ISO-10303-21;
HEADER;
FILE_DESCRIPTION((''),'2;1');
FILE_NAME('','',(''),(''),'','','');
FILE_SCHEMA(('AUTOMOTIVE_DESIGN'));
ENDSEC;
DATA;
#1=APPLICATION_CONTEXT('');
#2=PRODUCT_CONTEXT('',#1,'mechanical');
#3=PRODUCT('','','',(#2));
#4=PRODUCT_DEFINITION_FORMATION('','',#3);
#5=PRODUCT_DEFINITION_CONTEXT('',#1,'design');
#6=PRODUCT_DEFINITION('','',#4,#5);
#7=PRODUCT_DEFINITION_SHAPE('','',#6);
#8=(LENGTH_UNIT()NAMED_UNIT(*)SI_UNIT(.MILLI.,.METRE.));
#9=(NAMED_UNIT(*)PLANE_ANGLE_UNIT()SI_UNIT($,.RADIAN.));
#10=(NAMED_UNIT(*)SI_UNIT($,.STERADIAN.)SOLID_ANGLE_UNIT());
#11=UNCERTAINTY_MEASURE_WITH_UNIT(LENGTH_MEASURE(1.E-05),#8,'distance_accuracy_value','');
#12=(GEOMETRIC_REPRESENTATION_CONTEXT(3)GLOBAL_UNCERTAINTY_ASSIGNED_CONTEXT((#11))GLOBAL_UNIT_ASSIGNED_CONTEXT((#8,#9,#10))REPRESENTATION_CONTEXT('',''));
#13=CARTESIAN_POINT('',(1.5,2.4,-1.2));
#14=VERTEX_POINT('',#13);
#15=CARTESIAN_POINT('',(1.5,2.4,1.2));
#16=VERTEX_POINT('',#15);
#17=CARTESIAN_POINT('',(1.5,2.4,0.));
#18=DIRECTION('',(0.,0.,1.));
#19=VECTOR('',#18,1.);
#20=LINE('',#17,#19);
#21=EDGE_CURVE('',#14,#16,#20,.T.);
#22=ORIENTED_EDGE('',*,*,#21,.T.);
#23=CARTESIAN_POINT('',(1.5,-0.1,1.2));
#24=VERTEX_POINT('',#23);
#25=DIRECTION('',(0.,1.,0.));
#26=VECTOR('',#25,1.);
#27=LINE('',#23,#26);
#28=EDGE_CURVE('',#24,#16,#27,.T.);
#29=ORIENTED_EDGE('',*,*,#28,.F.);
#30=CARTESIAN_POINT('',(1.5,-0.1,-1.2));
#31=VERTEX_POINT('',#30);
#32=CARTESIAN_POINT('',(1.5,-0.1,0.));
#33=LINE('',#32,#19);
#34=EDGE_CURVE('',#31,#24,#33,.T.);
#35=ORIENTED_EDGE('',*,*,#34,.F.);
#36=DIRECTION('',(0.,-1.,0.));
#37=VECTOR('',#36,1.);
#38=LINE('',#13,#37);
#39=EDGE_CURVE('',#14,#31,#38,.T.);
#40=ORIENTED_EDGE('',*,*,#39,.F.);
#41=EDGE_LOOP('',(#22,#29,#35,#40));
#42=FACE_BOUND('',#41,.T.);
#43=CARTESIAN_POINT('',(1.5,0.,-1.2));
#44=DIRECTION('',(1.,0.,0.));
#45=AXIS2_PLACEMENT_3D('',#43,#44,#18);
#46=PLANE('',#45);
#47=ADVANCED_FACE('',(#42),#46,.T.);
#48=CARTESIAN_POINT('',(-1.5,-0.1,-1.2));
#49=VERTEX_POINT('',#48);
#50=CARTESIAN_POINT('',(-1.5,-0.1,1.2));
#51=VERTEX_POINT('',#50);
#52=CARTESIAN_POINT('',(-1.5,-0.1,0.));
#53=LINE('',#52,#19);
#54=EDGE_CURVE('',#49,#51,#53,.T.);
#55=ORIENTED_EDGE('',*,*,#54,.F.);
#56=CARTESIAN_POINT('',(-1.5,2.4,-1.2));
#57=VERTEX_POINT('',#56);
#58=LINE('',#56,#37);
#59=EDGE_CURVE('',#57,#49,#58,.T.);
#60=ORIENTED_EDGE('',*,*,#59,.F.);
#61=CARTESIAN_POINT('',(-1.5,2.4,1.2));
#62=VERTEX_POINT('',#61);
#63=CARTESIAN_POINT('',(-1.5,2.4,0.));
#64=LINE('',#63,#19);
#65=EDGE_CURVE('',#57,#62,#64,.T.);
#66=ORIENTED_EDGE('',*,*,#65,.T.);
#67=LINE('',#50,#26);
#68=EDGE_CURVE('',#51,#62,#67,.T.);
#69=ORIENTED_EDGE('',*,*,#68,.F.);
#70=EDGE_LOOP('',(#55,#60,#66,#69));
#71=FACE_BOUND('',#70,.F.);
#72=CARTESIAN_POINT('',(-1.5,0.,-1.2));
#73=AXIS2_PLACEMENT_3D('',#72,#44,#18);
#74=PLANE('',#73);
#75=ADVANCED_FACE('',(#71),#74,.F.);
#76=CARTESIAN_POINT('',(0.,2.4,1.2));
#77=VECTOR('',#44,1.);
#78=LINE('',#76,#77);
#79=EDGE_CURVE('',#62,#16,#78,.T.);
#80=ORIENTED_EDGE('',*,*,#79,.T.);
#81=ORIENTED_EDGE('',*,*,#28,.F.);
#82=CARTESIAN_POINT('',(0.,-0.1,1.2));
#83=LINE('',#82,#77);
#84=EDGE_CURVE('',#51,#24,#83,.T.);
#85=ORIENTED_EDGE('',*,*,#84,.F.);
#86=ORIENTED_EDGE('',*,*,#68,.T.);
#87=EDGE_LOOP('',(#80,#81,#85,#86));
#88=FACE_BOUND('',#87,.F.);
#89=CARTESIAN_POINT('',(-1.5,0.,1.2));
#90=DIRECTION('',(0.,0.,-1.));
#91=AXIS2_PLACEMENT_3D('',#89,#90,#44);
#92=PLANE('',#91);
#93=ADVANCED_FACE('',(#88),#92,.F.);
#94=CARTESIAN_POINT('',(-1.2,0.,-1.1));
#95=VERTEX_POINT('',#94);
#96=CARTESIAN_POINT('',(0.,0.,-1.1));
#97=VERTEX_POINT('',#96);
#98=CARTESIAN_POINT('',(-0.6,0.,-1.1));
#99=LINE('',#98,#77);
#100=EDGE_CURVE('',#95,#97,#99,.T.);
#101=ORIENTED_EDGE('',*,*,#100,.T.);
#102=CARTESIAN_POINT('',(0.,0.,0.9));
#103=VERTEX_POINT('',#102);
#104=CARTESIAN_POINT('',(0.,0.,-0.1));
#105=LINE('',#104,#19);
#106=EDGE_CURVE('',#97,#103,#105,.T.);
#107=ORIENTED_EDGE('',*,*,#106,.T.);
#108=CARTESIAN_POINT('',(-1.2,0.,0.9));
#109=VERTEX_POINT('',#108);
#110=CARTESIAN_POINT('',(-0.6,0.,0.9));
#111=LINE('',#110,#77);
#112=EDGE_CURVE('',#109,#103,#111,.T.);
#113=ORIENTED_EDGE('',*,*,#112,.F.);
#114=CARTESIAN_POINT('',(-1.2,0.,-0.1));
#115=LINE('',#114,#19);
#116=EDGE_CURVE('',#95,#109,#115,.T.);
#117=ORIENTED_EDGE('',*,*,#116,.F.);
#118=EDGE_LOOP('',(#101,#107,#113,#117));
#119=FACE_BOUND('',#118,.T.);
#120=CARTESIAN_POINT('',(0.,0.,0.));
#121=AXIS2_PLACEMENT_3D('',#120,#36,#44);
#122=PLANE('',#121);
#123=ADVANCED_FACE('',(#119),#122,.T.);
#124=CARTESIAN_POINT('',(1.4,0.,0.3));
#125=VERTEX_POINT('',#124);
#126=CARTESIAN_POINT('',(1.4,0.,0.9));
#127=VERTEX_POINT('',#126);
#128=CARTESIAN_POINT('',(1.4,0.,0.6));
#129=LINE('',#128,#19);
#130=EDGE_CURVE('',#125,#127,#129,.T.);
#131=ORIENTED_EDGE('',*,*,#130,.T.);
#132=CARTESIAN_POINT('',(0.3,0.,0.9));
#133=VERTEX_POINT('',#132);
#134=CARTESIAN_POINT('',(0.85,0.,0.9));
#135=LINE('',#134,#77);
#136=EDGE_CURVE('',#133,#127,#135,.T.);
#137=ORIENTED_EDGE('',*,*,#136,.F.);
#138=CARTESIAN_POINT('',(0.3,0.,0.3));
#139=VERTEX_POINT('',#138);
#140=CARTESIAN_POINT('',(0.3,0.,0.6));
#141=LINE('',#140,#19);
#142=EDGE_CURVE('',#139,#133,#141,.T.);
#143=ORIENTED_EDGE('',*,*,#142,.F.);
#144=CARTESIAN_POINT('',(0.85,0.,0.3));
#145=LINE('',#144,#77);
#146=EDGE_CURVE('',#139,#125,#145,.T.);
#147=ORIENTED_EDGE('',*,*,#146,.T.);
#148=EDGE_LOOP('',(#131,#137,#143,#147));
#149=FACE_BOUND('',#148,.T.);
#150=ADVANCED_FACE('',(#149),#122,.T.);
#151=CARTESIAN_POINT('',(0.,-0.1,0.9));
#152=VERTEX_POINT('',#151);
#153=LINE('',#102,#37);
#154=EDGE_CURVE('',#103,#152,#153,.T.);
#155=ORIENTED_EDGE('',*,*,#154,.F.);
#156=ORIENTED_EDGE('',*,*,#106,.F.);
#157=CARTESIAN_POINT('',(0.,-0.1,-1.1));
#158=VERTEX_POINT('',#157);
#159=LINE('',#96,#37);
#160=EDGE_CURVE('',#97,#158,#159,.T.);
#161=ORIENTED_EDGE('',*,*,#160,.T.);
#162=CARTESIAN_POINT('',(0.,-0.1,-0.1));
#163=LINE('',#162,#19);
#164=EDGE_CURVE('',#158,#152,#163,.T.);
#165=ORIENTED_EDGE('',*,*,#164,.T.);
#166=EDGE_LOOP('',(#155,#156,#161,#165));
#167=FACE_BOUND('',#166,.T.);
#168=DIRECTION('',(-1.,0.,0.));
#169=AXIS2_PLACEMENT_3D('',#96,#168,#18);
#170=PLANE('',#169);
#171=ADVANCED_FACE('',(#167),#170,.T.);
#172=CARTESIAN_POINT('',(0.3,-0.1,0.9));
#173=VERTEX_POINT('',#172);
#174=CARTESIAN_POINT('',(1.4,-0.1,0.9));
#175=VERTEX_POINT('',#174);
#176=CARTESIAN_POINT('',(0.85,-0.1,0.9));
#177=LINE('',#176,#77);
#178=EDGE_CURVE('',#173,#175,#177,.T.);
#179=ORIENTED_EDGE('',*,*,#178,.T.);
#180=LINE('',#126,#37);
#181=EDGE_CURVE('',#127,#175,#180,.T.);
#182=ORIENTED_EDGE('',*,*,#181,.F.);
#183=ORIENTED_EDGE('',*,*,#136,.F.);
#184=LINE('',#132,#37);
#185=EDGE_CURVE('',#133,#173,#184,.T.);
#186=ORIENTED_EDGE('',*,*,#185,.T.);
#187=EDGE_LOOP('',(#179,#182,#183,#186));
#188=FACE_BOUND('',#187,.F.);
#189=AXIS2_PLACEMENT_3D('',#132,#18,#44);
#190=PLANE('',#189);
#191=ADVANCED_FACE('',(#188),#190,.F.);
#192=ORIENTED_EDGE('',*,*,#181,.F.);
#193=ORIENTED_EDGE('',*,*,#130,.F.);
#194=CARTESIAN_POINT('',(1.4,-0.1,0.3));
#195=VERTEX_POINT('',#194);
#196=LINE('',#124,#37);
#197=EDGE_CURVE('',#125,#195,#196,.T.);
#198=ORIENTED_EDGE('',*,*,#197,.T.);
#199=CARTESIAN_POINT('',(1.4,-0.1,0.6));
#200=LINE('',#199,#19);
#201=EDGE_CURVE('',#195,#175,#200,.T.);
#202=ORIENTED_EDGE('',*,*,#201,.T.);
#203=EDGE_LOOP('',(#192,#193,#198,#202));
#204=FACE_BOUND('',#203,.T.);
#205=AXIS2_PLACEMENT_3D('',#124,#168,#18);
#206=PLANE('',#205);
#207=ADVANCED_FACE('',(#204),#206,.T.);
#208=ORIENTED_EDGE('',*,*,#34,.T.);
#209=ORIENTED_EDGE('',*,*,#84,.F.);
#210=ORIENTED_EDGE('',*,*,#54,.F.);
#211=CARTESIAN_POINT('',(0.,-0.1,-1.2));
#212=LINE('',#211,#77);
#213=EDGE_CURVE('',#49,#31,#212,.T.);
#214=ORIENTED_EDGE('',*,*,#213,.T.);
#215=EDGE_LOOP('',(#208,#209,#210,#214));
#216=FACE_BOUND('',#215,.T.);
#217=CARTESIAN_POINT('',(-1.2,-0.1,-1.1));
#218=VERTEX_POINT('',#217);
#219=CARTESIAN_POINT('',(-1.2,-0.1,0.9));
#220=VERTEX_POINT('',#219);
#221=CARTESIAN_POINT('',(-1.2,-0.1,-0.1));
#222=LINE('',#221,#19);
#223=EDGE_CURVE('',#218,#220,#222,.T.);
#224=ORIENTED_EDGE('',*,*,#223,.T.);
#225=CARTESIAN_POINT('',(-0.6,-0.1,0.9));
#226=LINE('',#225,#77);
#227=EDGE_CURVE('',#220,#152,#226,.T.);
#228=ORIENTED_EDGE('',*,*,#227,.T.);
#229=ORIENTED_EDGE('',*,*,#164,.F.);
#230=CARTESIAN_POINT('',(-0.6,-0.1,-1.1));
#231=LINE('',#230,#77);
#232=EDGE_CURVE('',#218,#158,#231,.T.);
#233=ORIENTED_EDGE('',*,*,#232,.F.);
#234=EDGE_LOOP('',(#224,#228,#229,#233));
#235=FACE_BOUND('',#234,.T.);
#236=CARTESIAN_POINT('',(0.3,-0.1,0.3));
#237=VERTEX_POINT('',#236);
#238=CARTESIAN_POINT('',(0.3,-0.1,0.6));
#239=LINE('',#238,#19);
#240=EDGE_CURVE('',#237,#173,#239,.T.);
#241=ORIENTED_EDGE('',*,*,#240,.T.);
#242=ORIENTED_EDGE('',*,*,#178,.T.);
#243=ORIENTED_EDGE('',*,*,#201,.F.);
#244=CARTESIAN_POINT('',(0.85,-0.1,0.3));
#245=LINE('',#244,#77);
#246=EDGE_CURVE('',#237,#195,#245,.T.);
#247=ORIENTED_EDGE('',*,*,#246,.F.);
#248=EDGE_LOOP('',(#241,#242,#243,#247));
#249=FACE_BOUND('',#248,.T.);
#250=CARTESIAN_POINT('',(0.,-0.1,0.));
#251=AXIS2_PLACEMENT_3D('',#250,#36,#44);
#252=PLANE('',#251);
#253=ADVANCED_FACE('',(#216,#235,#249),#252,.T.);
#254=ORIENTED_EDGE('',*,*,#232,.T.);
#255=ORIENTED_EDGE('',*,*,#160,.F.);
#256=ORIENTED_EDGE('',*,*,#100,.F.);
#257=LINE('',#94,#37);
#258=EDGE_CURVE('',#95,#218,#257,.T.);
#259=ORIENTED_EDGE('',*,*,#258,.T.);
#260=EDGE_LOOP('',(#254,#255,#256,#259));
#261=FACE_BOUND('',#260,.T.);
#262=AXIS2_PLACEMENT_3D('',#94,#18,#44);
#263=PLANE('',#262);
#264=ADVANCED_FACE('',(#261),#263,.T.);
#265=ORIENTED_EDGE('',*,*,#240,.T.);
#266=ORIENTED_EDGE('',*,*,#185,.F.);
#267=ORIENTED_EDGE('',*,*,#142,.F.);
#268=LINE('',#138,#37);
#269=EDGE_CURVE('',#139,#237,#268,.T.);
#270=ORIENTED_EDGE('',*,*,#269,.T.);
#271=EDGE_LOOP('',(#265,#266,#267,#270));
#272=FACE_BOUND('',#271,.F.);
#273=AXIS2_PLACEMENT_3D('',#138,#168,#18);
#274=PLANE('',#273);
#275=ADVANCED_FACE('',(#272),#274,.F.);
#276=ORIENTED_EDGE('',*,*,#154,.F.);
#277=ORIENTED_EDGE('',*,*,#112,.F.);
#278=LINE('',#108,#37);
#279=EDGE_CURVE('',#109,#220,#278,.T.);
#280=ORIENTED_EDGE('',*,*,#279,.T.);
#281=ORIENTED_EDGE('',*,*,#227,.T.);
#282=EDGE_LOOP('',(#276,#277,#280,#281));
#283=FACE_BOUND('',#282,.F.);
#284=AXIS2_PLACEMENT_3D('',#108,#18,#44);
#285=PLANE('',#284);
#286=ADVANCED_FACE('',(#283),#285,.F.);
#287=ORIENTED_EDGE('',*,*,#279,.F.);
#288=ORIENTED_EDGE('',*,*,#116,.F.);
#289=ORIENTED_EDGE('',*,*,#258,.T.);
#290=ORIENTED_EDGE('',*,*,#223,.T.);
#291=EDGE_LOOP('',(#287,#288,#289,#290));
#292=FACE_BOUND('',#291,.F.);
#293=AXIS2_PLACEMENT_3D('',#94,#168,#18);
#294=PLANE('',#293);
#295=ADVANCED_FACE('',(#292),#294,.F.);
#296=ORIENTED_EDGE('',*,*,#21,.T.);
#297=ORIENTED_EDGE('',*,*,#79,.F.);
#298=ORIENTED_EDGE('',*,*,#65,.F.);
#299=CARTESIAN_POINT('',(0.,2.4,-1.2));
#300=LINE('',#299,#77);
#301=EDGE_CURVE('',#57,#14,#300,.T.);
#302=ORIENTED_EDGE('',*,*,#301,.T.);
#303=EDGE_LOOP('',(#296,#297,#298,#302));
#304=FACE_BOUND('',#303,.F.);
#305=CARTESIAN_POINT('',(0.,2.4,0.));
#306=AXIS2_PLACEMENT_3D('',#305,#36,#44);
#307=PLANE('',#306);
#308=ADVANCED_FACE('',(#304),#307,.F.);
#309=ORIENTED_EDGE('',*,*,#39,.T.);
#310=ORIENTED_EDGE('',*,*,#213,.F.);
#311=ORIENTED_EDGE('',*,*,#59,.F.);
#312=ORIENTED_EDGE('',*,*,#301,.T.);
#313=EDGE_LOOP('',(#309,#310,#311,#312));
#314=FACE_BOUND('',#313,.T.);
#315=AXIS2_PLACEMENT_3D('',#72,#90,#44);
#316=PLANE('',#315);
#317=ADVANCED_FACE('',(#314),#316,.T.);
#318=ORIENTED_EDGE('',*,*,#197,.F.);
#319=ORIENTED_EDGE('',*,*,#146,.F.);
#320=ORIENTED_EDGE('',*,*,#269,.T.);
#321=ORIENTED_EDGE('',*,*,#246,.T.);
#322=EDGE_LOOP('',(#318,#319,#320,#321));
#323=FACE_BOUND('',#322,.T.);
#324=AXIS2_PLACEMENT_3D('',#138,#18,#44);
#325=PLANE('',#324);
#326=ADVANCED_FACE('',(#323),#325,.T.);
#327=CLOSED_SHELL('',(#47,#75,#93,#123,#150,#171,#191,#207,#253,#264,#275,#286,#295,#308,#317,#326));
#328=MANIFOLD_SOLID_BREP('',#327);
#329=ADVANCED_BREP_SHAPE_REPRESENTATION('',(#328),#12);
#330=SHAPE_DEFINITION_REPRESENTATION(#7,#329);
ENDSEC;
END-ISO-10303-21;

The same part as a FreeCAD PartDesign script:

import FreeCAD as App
import Part
import Sketcher

V = App.Vector
Q = App.Units.Quantity


def add_polygon(sketch, points):
    """Adds a closed chain of lines whose ends are joined by coincident constraints."""
    first, n = sketch.GeometryCount, len(points)
    for a, b in zip(points, points[1:] + points[:1]):
        sketch.addGeometry(Part.LineSegment(App.Vector(*a, 0), App.Vector(*b, 0)), False)
    for i in range(n):
        sketch.addConstraint(Sketcher.Constraint("Coincident", first + i, 2, first + (i + 1) % n, 1))

doc = App.newDocument("Part")
body = doc.addObject("PartDesign::Body", "Body")

# Sketch on XZ plane
sketch1 = body.newObject("Sketcher::SketchObject", "Sketch")
sketch1.AttachmentSupport = (doc.getObject("XZ_Plane"), [""])
sketch1.MapMode = "FlatFace"
add_polygon(sketch1, [(-1.5, 1.2), (-1.5, -1.2), (1.5, -1.2), (1.5, 1.2)])  # lines 0-3
add_polygon(sketch1, [(0, -1.1), (-1.2, -1.1), (-1.2, 0.9), (0, 0.9)])  # lines 4-7
add_polygon(sketch1, [(1.4, 0.3), (0.3, 0.3), (0.3, 0.9), (1.4, 0.9)])  # lines 8-11
sketch1.addConstraint([
    Sketcher.Constraint("Vertical", 0),
    Sketcher.Constraint("Horizontal", 1),
    Sketcher.Constraint("Vertical", 2),
    Sketcher.Constraint("Horizontal", 3),
    Sketcher.Constraint("Horizontal", 4),
    Sketcher.Constraint("Vertical", 5),
    Sketcher.Constraint("Horizontal", 6),
    Sketcher.Constraint("Vertical", 7),
    Sketcher.Constraint("Horizontal", 8),
    Sketcher.Constraint("Vertical", 9),
    Sketcher.Constraint("Horizontal", 10),
    Sketcher.Constraint("Vertical", 11),
    Sketcher.Constraint("Symmetric", 0, 2, 2, 2, -1, 1),
    Sketcher.Constraint("PointOnObject", 6, 2, -2),
    Sketcher.Constraint("Horizontal", 6, 2, 9, 2),
    Sketcher.Constraint("DistanceX", 1, 1, 1, 2, Q("3 mm")),
    Sketcher.Constraint("DistanceY", 5, 1, 5, 2, Q("2 mm")),
    Sketcher.Constraint("DistanceX", 4, 2, 4, 1, Q("1.2 mm")),
    Sketcher.Constraint("DistanceX", 8, 2, 8, 1, Q("1.1 mm")),
    Sketcher.Constraint("DistanceY", 0, 2, 0, 1, Q("2.4 mm")),
    Sketcher.Constraint("DistanceY", 9, 1, 9, 2, Q("0.6 mm")),
    Sketcher.Constraint("DistanceY", 4, 2, -1, 1, Q("1.1 mm")),
    Sketcher.Constraint("DistanceX", -1, 1, 8, 2, Q("0.3 mm")),
])
pad1 = body.newObject("PartDesign::Pad", "Pad")
pad1.Profile = sketch1
pad1.Length = 0.1

# Sketch on XZ plane
sketch2 = body.newObject("Sketcher::SketchObject", "Sketch001")
sketch2.AttachmentSupport = (doc.getObject("XZ_Plane"), [""])
sketch2.MapMode = "FlatFace"
add_polygon(sketch2, [(-1.5, 1.2), (-1.5, -1.2), (1.5, -1.2), (1.5, 1.2)])  # lines 0-3
sketch2.addConstraint([
    Sketcher.Constraint("Vertical", 0),
    Sketcher.Constraint("Horizontal", 1),
    Sketcher.Constraint("Vertical", 2),
    Sketcher.Constraint("Horizontal", 3),
    Sketcher.Constraint("Symmetric", 0, 2, 2, 2, -1, 1),
    Sketcher.Constraint("DistanceX", 1, 1, 1, 2, Q("3 mm")),
    Sketcher.Constraint("DistanceY", 0, 2, 0, 1, Q("2.4 mm")),
])
pad2 = body.newObject("PartDesign::Pad", "Pad001")
pad2.Profile = sketch2
pad2.Length = 2.4
pad2.Reversed = True

doc.recompute()
